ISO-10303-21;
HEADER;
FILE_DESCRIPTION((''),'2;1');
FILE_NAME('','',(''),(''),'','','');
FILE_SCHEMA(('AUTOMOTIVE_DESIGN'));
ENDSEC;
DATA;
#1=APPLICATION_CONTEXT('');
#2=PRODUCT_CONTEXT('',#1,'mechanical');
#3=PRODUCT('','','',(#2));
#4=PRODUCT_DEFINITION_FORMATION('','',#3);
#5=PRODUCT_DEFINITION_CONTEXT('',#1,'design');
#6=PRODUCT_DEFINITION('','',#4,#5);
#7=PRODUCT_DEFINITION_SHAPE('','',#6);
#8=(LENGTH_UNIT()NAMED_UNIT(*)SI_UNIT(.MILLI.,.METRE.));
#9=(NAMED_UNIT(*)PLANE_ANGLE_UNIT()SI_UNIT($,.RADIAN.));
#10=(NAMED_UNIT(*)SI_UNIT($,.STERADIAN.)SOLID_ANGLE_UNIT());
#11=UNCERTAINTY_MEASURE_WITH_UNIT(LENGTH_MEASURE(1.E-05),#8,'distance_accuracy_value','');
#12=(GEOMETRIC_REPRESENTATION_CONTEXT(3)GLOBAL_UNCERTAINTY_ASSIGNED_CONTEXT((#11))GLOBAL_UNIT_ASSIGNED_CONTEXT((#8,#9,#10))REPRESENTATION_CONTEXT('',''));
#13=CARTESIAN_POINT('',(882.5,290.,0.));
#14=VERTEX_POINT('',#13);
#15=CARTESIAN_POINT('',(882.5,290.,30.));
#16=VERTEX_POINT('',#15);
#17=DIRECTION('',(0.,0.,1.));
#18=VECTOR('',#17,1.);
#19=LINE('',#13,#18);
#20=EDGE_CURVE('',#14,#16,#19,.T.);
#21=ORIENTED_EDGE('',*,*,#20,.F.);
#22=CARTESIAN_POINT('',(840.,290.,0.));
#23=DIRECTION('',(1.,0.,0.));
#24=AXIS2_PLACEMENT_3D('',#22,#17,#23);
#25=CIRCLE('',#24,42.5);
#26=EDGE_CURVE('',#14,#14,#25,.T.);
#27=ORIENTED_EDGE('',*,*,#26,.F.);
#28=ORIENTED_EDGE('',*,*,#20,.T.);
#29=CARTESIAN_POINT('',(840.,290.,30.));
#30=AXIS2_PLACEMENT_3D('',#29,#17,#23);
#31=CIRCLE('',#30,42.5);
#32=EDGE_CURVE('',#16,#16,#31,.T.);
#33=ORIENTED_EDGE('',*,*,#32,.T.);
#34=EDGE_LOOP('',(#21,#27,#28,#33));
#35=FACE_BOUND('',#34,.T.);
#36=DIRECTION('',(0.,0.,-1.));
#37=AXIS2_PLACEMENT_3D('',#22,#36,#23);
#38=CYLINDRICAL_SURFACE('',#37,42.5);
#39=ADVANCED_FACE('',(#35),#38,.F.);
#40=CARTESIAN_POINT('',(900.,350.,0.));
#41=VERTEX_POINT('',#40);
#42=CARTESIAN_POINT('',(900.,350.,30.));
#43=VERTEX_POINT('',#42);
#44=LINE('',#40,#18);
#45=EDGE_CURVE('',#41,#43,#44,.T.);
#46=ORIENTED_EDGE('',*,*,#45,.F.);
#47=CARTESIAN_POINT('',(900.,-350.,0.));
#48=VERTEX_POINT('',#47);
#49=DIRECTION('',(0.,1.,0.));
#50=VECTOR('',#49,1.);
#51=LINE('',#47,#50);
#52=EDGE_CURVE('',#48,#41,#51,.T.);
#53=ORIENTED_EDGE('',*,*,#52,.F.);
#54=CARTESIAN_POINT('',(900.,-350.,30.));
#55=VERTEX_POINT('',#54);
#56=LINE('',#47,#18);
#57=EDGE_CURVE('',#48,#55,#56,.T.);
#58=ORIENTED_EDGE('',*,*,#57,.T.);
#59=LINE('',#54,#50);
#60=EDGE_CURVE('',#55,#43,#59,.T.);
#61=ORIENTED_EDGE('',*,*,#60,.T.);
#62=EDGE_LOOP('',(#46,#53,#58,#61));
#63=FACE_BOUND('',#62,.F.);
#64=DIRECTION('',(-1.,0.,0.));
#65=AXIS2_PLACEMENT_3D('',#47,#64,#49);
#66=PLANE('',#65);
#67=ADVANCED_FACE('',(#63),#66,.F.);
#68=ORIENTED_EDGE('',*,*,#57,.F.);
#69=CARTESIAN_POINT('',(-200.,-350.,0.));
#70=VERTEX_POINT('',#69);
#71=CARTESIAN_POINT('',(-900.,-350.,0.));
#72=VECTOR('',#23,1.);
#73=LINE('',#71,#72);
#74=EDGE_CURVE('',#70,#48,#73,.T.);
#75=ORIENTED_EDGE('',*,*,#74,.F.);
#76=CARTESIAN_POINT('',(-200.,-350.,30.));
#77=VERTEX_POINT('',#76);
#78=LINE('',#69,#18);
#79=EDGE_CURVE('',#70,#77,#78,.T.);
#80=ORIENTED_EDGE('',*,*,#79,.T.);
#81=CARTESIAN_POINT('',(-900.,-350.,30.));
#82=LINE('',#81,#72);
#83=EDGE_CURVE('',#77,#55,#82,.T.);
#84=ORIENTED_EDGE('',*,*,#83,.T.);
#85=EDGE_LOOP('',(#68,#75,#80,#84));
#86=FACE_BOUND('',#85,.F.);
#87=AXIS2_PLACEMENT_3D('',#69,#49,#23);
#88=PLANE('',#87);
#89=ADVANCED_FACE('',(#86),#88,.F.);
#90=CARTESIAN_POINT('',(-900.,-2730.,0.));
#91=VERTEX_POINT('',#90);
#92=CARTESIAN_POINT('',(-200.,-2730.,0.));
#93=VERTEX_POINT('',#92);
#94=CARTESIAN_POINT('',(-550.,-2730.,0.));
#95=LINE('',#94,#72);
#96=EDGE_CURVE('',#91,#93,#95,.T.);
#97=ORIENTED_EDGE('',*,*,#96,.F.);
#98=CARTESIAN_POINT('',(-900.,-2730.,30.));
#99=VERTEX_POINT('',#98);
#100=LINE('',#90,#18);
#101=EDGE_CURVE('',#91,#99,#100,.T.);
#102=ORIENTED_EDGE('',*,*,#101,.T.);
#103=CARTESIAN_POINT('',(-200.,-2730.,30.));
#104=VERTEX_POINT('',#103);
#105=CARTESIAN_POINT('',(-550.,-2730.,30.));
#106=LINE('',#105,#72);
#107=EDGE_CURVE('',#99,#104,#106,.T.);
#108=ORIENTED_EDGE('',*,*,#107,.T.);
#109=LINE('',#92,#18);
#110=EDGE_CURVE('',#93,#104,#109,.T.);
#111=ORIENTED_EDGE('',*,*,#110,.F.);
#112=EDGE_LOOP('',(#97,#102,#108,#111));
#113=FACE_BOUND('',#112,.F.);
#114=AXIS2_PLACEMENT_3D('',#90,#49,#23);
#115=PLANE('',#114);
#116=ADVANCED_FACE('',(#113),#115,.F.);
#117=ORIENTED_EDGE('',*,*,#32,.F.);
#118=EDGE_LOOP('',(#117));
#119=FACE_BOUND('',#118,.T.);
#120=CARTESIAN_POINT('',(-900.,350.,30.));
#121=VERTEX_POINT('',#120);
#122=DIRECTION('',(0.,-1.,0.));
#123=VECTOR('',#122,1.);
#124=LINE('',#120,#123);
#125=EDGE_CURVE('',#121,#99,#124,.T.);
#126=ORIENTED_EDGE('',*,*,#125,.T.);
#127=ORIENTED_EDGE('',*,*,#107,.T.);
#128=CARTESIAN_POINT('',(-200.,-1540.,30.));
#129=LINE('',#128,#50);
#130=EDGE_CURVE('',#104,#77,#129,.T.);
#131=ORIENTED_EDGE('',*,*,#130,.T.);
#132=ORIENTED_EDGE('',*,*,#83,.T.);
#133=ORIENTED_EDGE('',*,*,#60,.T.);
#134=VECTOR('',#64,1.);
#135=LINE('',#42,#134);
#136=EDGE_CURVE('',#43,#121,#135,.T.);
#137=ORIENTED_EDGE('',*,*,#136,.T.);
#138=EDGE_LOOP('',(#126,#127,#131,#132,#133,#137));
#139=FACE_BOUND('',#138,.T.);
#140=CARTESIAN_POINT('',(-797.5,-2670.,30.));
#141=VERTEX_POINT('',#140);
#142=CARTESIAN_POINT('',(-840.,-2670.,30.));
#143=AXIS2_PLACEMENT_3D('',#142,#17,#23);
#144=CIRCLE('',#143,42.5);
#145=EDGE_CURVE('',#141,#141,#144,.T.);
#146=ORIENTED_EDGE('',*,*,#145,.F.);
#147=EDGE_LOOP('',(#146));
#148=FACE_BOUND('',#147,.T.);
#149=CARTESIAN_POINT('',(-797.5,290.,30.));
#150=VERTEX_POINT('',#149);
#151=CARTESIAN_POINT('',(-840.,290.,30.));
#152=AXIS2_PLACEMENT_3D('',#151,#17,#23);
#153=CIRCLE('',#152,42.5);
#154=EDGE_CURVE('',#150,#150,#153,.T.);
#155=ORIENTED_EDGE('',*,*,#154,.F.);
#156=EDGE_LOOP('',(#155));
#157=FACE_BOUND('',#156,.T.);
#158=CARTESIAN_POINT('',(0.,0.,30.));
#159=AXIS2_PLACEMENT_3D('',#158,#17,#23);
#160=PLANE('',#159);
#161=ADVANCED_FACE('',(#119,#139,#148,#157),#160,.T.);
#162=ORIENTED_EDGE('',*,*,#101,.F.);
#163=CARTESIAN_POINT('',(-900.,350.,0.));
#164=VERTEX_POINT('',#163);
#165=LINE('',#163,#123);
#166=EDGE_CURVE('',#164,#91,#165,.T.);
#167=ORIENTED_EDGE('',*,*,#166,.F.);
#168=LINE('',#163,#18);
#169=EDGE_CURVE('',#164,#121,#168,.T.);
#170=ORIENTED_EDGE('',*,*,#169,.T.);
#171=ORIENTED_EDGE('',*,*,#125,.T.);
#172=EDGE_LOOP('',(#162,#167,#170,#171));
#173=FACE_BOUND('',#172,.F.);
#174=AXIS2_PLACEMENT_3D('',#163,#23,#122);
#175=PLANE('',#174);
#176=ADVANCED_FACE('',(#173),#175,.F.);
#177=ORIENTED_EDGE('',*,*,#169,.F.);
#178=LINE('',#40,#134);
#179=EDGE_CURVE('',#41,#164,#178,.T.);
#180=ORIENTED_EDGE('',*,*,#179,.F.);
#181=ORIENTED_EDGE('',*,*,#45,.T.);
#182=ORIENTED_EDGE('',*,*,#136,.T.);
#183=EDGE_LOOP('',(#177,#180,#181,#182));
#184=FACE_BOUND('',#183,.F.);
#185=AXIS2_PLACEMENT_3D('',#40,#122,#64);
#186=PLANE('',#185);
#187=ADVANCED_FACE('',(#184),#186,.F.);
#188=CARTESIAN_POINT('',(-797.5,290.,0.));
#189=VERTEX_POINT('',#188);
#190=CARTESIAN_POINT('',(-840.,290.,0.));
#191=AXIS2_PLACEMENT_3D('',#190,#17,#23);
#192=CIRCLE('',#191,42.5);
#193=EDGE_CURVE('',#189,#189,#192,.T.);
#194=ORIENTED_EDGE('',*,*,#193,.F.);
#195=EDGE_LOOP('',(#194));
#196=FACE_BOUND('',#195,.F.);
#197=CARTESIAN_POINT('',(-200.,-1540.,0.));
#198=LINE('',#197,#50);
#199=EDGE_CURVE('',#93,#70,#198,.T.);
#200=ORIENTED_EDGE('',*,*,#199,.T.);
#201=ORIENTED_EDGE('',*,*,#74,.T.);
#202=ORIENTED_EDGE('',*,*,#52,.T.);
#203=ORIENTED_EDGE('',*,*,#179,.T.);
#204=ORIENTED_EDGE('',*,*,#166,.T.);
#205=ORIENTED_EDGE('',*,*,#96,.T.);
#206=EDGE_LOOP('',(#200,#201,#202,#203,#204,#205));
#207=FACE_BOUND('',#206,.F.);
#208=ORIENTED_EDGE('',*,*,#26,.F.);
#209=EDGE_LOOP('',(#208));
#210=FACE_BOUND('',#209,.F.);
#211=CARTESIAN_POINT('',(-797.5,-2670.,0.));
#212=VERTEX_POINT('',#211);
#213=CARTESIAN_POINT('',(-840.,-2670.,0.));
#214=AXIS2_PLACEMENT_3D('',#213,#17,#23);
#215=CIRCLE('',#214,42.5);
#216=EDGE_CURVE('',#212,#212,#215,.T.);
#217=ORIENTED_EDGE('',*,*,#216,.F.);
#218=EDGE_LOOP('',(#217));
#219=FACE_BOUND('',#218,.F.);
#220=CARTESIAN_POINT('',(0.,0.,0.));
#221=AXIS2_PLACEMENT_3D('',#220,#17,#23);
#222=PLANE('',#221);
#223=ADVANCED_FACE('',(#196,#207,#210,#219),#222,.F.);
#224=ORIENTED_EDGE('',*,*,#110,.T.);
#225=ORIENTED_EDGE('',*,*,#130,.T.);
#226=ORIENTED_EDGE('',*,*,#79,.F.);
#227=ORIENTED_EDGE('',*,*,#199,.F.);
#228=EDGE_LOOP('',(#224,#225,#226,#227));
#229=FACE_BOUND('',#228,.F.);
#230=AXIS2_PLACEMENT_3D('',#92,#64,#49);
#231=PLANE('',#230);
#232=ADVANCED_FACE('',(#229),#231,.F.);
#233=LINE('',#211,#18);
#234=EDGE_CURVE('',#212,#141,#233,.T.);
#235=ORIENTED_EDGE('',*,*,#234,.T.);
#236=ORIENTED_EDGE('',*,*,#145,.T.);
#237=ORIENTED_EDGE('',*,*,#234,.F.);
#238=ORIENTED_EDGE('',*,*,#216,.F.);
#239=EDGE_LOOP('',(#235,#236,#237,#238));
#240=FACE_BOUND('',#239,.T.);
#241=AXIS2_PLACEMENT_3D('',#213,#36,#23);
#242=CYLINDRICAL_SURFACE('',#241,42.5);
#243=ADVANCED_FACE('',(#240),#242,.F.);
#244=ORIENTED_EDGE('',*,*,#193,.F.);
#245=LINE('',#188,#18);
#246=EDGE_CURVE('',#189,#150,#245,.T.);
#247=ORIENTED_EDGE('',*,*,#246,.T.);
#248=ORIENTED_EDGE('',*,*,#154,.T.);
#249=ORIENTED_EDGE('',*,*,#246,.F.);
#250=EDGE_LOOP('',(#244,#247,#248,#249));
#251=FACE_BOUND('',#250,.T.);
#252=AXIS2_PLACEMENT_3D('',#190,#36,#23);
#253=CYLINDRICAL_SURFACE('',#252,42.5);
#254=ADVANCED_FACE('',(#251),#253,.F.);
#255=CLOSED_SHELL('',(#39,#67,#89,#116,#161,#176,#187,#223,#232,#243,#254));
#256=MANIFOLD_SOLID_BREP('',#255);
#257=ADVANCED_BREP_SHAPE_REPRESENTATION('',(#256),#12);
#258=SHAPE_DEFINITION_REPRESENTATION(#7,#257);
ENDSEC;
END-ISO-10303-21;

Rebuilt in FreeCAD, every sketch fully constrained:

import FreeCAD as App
import Part
import Sketcher
Q = App.Units.Quantity

doc = App.newDocument("Part")
params = doc.addObject("Spreadsheet::Sheet", "Params")
for row, (alias, value) in enumerate([
    ("sketch1_diameter", "85 mm"),
    ("sketch1_width", "1800 mm"),
    ("sketch1_width2", "700 mm"),
    ("sketch1_height", "3080 mm"),
    ("pad1_length", "30 mm"),
], start=1):
    params.set(f"A{row}", alias)
    params.set(f"B{row}", "=" + value)
    params.setAlias(f"B{row}", alias)

body = doc.addObject("PartDesign::Body", "Body")

# Sketch on XY plane
sketch1 = body.newObject("Sketcher::SketchObject", "Sketch")
sketch1.AttachmentSupport = (doc.getObject("XY_Plane"), [""])
sketch1.MapMode = "FlatFace"
sketch1.addGeometry([
    Part.LineSegment(App.Vector(900, -350, 0), App.Vector(900, 350, 0)),  # 0
    Part.LineSegment(App.Vector(900, 350, 0), App.Vector(-900, 350, 0)),  # 1
    Part.LineSegment(App.Vector(-900, 350, 0), App.Vector(-900, -2730, 0)),  # 2
    Part.LineSegment(App.Vector(-900, -2730, 0), App.Vector(-200, -2730, 0)),  # 3
    Part.LineSegment(App.Vector(-200, -2730, 0), App.Vector(-200, -350, 0)),  # 4
    Part.LineSegment(App.Vector(-200, -350, 0), App.Vector(900, -350, 0)),  # 5
    Part.Circle(App.Vector(-840, -2670, 0), App.Vector(0, 0, 1), 42),  # 6
    Part.Circle(App.Vector(-840, 290, 0), App.Vector(0, 0, 1), 42),  # 7
    Part.Circle(App.Vector(840, 290, 0), App.Vector(0, 0, 1), 42),  # 8
], False)
sketch1.addConstraint([
    Sketcher.Constraint("Coincident", 0, 2, 1, 1),
    Sketcher.Constraint("Coincident", 1, 2, 2, 1),
    Sketcher.Constraint("Coincident", 2, 2, 3, 1),
    Sketcher.Constraint("Coincident", 3, 2, 4, 1),
    Sketcher.Constraint("Coincident", 4, 2, 5, 1),
    Sketcher.Constraint("Coincident", 5, 2, 0, 1),
    Sketcher.Constraint("Vertical", 0),
    Sketcher.Constraint("Horizontal", 1),
    Sketcher.Constraint("Vertical", 2),
    Sketcher.Constraint("Horizontal", 3),
    Sketcher.Constraint("Vertical", 4),
    Sketcher.Constraint("Horizontal", 5),
    Sketcher.Constraint("Equal", 6, 7),
    Sketcher.Constraint("Equal", 7, 8),
    Sketcher.Constraint("Symmetric", 1, 2, 5, 2, -1, 1),
    Sketcher.Constraint("Symmetric", 7, 3, 8, 3, -2),
    Sketcher.Constraint("Vertical", 6, 3, 7, 3),
    Sketcher.Constraint("Equal", 3, 0),
    Sketcher.Constraint("Diameter", 6, Q("85 mm")),
    Sketcher.Constraint("DistanceX", 1, 2, 1, 1, Q("1800 mm")),
    Sketcher.Constraint("DistanceX", 3, 1, 3, 2, Q("700 mm")),
    Sketcher.Constraint("DistanceY", 2, 2, 2, 1, Q("3080 mm")),
    Sketcher.Constraint("DistanceX", 6, 3, -1, 1, Q("840 mm")),
    Sketcher.Constraint("DistanceY", 6, 3, -1, 1, Q("2670 mm")),
    Sketcher.Constraint("DistanceY", -1, 1, 7, 3, Q("290 mm")),
])
sketch1.setExpression("Constraints[18]", "Params.sketch1_diameter")
sketch1.setExpression("Constraints[19]", "Params.sketch1_width")
sketch1.setExpression("Constraints[20]", "Params.sketch1_width2")
sketch1.setExpression("Constraints[21]", "Params.sketch1_height")
pad1 = body.newObject("PartDesign::Pad", "Pad")
pad1.Profile = sketch1
pad1.setExpression("Length", "Params.pad1_length")

doc.recompute()
